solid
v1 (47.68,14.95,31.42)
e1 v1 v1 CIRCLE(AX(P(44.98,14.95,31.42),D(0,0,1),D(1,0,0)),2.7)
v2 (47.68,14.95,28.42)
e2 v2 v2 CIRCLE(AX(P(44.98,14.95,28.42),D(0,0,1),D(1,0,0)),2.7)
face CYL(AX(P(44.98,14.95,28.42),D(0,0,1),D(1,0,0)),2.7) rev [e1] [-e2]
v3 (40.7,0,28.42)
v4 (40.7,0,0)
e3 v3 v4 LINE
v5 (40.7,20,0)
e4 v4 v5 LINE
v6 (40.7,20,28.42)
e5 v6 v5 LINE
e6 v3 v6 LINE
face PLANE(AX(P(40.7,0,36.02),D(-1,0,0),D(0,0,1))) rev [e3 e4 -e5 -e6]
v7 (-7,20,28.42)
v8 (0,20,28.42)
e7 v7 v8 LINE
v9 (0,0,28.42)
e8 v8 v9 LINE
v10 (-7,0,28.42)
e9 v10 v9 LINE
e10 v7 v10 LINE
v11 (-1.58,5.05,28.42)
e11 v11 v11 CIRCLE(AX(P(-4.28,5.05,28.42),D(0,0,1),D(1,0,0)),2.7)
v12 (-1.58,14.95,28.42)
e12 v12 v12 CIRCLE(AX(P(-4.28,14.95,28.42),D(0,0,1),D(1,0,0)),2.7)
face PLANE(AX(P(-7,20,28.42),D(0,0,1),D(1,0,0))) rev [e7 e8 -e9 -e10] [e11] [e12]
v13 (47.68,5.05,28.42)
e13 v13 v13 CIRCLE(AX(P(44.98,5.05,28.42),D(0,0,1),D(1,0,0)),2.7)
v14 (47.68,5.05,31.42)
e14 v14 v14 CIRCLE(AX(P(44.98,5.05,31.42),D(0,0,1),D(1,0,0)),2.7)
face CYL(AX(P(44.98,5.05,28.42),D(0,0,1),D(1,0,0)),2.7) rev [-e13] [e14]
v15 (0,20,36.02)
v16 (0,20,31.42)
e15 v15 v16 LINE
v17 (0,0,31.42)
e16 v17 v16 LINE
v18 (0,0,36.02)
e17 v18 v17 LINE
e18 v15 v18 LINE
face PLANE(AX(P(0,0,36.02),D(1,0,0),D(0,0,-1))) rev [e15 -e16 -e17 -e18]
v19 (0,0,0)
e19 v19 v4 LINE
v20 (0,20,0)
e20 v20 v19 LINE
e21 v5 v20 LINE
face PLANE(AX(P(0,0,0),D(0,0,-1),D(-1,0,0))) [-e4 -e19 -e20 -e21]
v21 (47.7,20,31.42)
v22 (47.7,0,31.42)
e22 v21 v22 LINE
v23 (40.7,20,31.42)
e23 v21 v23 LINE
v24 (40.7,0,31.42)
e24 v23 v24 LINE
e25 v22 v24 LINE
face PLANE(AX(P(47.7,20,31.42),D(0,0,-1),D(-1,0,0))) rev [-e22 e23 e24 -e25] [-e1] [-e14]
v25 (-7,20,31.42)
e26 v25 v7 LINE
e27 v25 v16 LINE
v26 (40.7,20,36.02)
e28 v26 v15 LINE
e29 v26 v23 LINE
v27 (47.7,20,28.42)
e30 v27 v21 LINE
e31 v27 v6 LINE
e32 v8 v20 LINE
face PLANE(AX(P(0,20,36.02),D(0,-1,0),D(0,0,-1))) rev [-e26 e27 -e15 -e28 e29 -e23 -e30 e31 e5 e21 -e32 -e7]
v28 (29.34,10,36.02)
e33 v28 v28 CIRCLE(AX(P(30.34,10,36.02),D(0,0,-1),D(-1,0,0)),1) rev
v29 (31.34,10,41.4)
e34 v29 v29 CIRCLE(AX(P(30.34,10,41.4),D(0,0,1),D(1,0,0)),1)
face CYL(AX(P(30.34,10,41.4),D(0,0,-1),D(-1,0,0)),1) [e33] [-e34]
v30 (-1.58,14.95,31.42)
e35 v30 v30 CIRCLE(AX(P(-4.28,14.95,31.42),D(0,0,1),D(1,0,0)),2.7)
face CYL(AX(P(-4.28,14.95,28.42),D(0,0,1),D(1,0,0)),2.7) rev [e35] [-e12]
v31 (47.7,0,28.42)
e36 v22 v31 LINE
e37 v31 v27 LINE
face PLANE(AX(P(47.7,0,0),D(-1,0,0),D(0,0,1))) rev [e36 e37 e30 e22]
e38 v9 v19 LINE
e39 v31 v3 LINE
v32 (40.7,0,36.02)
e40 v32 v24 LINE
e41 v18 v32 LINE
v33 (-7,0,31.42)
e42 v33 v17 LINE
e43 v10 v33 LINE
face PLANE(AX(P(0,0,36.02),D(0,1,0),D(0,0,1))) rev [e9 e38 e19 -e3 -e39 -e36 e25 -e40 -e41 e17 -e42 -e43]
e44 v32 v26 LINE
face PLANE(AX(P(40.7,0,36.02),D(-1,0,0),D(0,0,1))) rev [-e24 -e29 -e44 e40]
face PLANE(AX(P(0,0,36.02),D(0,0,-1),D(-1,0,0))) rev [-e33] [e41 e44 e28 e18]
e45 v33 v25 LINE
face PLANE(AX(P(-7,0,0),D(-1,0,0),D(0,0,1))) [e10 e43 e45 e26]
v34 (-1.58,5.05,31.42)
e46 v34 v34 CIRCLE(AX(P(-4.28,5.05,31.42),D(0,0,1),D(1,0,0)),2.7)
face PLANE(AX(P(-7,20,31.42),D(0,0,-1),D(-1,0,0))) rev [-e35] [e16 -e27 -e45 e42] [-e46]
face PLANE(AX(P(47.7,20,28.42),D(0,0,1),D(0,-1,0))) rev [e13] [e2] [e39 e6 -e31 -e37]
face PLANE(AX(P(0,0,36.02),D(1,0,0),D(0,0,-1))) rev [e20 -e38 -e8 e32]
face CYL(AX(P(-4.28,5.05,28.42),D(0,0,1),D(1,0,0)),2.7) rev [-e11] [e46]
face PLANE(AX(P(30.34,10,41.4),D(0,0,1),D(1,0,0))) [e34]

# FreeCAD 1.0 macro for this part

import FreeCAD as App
import Part
import Sketcher


def add_polygon(sketch, points):
    """Adds a closed chain of lines whose ends are joined by coincident constraints."""
    first, n = sketch.GeometryCount, len(points)
    for a, b in zip(points, points[1:] + points[:1]):
        sketch.addGeometry(Part.LineSegment(App.Vector(*a, 0), App.Vector(*b, 0)), False)
    for i in range(n):
        sketch.addConstraint(Sketcher.Constraint("Coincident", first + i, 2, first + (i + 1) % n, 1))

doc = App.newDocument("Part")
body = doc.addObject("PartDesign::Body", "Body")

# Sketch on XY plane
sketch1 = body.newObject("Sketcher::SketchObject", "Sketch")
sketch1.AttachmentSupport = (doc.getObject("XY_Plane"), [""])
sketch1.MapMode = "FlatFace"
add_polygon(sketch1, [(0, 20), (0, 0), (41, 0), (41, 20)])  # lines 0-3
sketch1.addConstraint(Sketcher.Constraint("Vertical", 0))
sketch1.addConstraint(Sketcher.Constraint("Horizontal", 1))
sketch1.addConstraint(Sketcher.Constraint("Vertical", 2))
sketch1.addConstraint(Sketcher.Constraint("Horizontal", 3))
sketch1.addConstraint(Sketcher.Constraint("Coincident", 0, 2, -1, 1))
sketch1.addConstraint(Sketcher.Constraint("DistanceY", 0, 2, 0, 1, 20.0))
sketch1.addConstraint(Sketcher.Constraint("DistanceX", 1, 1, 1, 2, 40.7))
pad1 = body.newObject("PartDesign::Pad", "Pad")
pad1.Profile = sketch1
pad1.Length = 36.02

# Sketch on XY plane
sketch2 = body.newObject("Sketcher::SketchObject", "Sketch001")
sketch2.AttachmentSupport = (doc.getObject("XY_Plane"), [""])
sketch2.MapMode = "FlatFace"
sketch2.AttachmentOffset = App.Placement(App.Vector(0, 0, 36.02), App.Rotation())
sketch2.addGeometry(Part.Circle(App.Vector(30.3, 10, 0), App.Vector(0, 0, 1), 1), False)
sketch2.addConstraint(Sketcher.Constraint("Diameter", 0, 2.0))
sketch2.addConstraint(Sketcher.Constraint("DistanceY", -1, 1, 0, 3, 10.0))
sketch2.addConstraint(Sketcher.Constraint("DistanceX", -1, 1, 0, 3, 30.34))
pad2 = body.newObject("PartDesign::Pad", "Pad001")
pad2.Profile = sketch2
pad2.Length = 5.38

# Sketch on YZ plane
sketch3 = body.newObject("Sketcher::SketchObject", "Sketch002")
sketch3.AttachmentSupport = (doc.getObject("YZ_Plane"), [""])
sketch3.MapMode = "FlatFace"
sketch3.AttachmentOffset = App.Placement(App.Vector(0, 0, 40.7), App.Rotation())
add_polygon(sketch3, [(20, 31.4), (0, 31.4), (0, 28.4), (20, 28.4)])  # lines 0-3
sketch3.addConstraint(Sketcher.Constraint("Horizontal", 0))
sketch3.addConstraint(Sketcher.Constraint("Vertical", 1))
sketch3.addConstraint(Sketcher.Constraint("Horizontal", 2))
sketch3.addConstraint(Sketcher.Constraint("Vertical", 3))
sketch3.addConstraint(Sketcher.Constraint("PointOnObject", 0, 2, -2))
sketch3.addConstraint(Sketcher.Constraint("DistanceX", 0, 2, 0, 1, 20.0))
sketch3.addConstraint(Sketcher.Constraint("DistanceY", 1, 2, 1, 1, 3.0))
sketch3.addConstraint(Sketcher.Constraint("DistanceY", -1, 1, 0, 2, 31.42))
pad3 = body.newObject("PartDesign::Pad", "Pad002")
pad3.Profile = sketch3
pad3.Length = 7

# Sketch on YZ plane
sketch4 = body.newObject("Sketcher::SketchObject", "Sketch003")
sketch4.AttachmentSupport = (doc.getObject("YZ_Plane"), [""])
sketch4.MapMode = "FlatFace"
add_polygon(sketch4, [(20, 28.4), (0, 28.4), (0, 31.4), (20, 31.4)])  # lines 0-3
sketch4.addConstraint(Sketcher.Constraint("Horizontal", 0))
sketch4.addConstraint(Sketcher.Constraint("Vertical", 1))
sketch4.addConstraint(Sketcher.Constraint("Horizontal", 2))
sketch4.addConstraint(Sketcher.Constraint("Vertical", 3))
sketch4.addConstraint(Sketcher.Constraint("PointOnObject", 0, 2, -2))
sketch4.addConstraint(Sketcher.Constraint("DistanceX", 0, 2, 0, 1, 20.0))
sketch4.addConstraint(Sketcher.Constraint("DistanceY", 1, 1, 1, 2, 3.0))
sketch4.addConstraint(Sketcher.Constraint("DistanceY", -1, 1, 0, 2, 28.42))
pad4 = body.newObject("PartDesign::Pad", "Pad003")
pad4.Profile = sketch4
pad4.Length = 7
pad4.Reversed = True

# Sketch on XY plane
sketch5 = body.newObject("Sketcher::SketchObject", "Sketch004")
sketch5.AttachmentSupport = (doc.getObject("XY_Plane"), [""])
sketch5.MapMode = "FlatFace"
sketch5.AttachmentOffset = App.Placement(App.Vector(0, 0, 31.42), App.Rotation())
sketch5.addGeometry(Part.Circle(App.Vector(-4.3, 14.9, 0), App.Vector(0, 0, 1), 2.7), False)
sketch5.addGeometry(Part.Circle(App.Vector(-4.3, 5, 0), App.Vector(0, 0, 1), 2.7), False)
sketch5.addGeometry(Part.Circle(App.Vector(45, 14.9, 0), App.Vector(0, 0, 1), 2.7), False)
sketch5.addGeometry(Part.Circle(App.Vector(45, 5, 0), App.Vector(0, 0, 1), 2.7), False)
sketch5.addConstraint(Sketcher.Constraint("Equal", 0, 1))
sketch5.addConstraint(Sketcher.Constraint("Equal", 1, 2))
sketch5.addConstraint(Sketcher.Constraint("Equal", 2, 3))
sketch5.addConstraint(Sketcher.Constraint("Horizontal", 0, 3, 2, 3))
sketch5.addConstraint(Sketcher.Constraint("Horizontal", 1, 3, 3, 3))
sketch5.addConstraint(Sketcher.Constraint("Vertical", 0, 3, 1, 3))
sketch5.addConstraint(Sketcher.Constraint("Vertical", 2, 3, 3, 3))
sketch5.addConstraint(Sketcher.Constraint("Diameter", 0, 5.4))
sketch5.addConstraint(Sketcher.Constraint("DistanceY", 1, 3, 0, 3, 9.9))
sketch5.addConstraint(Sketcher.Constraint("DistanceX", 0, 3, -1, 1, 4.28))
sketch5.addConstraint(Sketcher.Constraint("DistanceY", -1, 1, 0, 3, 14.95))
sketch5.addConstraint(Sketcher.Constraint("DistanceX", -1, 1, 2, 3, 44.98))
pocket1 = body.newObject("PartDesign::Pocket", "Pocket")
pocket1.Profile = sketch5
pocket1.Length = 3

doc.recompute()
